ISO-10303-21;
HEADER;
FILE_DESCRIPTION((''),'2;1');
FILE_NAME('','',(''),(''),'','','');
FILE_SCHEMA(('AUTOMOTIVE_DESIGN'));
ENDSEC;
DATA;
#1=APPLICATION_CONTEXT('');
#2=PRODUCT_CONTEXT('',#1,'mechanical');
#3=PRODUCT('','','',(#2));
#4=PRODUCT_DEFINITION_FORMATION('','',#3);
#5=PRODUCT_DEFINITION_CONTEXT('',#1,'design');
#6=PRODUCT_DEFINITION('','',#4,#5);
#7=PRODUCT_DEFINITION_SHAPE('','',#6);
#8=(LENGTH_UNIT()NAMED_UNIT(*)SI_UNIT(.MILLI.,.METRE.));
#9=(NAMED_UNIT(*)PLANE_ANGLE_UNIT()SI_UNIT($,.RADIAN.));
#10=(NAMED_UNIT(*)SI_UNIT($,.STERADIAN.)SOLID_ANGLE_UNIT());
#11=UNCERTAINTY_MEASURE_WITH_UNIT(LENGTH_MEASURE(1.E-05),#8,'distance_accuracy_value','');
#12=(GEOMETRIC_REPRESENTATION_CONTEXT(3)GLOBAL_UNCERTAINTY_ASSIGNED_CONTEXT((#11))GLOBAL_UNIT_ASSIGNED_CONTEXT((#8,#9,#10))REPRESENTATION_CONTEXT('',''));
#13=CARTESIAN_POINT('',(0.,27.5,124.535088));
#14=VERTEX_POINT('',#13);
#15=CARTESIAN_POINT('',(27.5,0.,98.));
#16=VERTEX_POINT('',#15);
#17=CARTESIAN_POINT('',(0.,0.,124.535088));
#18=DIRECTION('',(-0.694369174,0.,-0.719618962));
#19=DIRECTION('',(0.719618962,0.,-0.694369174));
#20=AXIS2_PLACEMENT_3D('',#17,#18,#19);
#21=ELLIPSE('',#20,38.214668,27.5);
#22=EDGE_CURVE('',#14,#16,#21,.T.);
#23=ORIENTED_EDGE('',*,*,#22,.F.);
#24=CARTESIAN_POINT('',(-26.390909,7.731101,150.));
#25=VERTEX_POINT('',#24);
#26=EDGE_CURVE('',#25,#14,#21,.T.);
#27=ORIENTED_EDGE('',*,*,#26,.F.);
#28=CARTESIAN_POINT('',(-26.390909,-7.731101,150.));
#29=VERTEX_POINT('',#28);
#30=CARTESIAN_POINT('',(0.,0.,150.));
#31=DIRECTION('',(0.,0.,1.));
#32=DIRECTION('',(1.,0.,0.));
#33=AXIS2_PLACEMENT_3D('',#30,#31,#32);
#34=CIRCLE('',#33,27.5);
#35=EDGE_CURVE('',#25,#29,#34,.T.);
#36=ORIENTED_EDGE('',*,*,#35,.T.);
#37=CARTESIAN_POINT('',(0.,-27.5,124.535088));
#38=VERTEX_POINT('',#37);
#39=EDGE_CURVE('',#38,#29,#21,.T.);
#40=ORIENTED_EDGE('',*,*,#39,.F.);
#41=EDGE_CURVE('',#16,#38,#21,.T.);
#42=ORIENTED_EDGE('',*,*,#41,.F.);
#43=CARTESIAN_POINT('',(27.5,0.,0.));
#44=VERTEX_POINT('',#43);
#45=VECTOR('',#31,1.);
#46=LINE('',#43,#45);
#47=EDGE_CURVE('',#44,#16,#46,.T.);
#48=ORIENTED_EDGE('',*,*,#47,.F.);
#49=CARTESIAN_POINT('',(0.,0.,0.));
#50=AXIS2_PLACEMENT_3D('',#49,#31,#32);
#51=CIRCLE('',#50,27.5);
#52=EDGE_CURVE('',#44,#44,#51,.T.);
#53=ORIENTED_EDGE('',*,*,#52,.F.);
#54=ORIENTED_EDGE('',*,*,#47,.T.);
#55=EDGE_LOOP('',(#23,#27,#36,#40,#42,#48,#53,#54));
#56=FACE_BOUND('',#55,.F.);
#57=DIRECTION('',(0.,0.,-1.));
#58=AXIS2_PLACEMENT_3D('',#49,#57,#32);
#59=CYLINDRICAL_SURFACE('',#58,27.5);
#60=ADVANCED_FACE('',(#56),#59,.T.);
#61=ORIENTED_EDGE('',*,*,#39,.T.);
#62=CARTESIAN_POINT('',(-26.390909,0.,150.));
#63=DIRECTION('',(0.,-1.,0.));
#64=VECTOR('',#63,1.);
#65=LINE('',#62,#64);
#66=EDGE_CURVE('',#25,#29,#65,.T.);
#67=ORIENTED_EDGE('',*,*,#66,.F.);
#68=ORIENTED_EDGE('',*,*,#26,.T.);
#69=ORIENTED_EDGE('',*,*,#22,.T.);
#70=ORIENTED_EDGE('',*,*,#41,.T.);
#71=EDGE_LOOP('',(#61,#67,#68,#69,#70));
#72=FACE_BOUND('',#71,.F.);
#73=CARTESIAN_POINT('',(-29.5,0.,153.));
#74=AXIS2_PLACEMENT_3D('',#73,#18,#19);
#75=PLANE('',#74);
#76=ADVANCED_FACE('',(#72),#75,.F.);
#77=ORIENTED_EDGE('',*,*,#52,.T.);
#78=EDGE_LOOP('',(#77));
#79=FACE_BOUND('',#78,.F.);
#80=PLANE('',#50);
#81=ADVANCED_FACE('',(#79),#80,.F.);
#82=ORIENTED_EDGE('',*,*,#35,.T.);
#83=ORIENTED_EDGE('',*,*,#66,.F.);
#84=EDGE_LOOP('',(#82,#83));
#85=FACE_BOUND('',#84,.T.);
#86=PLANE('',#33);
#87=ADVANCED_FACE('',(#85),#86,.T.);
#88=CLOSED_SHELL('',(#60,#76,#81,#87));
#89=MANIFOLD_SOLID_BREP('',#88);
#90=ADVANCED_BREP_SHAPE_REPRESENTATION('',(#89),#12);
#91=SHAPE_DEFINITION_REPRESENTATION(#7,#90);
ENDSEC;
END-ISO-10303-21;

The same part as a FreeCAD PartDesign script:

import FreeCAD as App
import Part
import Sketcher

V = App.Vector


def add_polygon(sketch, points):
    """Adds a closed chain of lines whose ends are joined by coincident constraints."""
    first, n = sketch.GeometryCount, len(points)
    for a, b in zip(points, points[1:] + points[:1]):
        sketch.addGeometry(Part.LineSegment(App.Vector(*a, 0), App.Vector(*b, 0)), False)
    for i in range(n):
        sketch.addConstraint(Sketcher.Constraint("Coincident", first + i, 2, first + (i + 1) % n, 1))

doc = App.newDocument("Part")
body = doc.addObject("PartDesign::Body", "Body")

sketch1 = body.newObject("Sketcher::SketchObject", "Sketch")
sketch1.AttachmentSupport = (doc.getObject("XY_Plane"), [""])
sketch1.MapMode = "FlatFace"
sketch1.addGeometry(Part.Circle(V(0, 0, 0), V(0, 0, 1), 28), False)
sketch1.addConstraint([
    Sketcher.Constraint("Coincident", 0, 3, -1, 1),
    Sketcher.Constraint("Diameter", 0, 55.0),
])
pad1 = body.newObject("PartDesign::Pad", "Pad")
pad1.Profile = sketch1
pad1.Length = 150
body2 = doc.addObject("PartDesign::Body", "Body001")

sketch2 = body2.newObject("Sketcher::SketchObject", "Sketch001")
sketch2.AttachmentSupport = (doc.getObject("XZ_Plane001"), [""])
sketch2.MapMode = "FlatFace"
add_polygon(sketch2, [(28, 153), (-30, 153), (28, 98)])
sketch2.addConstraint([
    Sketcher.Constraint("Horizontal", 0),
    Sketcher.Constraint("Vertical", 2),
    Sketcher.Constraint("DistanceX", 0, 2, 0, 1, 57.0),
    Sketcher.Constraint("DistanceY", 2, 1, 2, 2, 55.0),
    Sketcher.Constraint("DistanceY", -1, 1, 0, 2, 153.0),
    Sketcher.Constraint("DistanceX", 0, 2, -1, 1, 29.5),
])
pad2 = body2.newObject("PartDesign::Pad", "Pad001")
pad2.Profile = sketch2
pad2.Type = "TwoLengths"
pad2.Length = 27.5
pad2.Length2 = 27.5
doc.recompute()

boolean = body.newObject("PartDesign::Boolean", "Boolean")
boolean.Type = "Cut"
boolean.addObjects([body2])

doc.recompute()
